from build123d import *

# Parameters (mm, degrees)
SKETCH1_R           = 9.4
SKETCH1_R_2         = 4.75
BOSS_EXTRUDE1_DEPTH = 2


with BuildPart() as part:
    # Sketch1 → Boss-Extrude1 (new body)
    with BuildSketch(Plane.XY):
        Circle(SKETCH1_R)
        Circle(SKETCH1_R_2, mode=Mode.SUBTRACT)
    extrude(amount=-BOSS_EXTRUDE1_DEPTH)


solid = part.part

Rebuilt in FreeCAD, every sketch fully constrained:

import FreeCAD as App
import Part
import Sketcher
from FreeCAD import Vector

doc = App.newDocument("Part")
params = doc.addObject("Spreadsheet::Sheet", "Params")
for row, (alias, value) in enumerate([
    ("sketch1_diameter", "18.8 mm"),
    ("sketch1_diameter2", "9.5 mm"),
    ("pad1_length", "2 mm"),
], start=1):
    params.set(f"A{row}", alias)
    params.set(f"B{row}", "=" + value)
    params.setAlias(f"B{row}", alias)

body = doc.addObject("PartDesign::Body", "Body")

sketch1 = body.newObject("Sketcher::SketchObject", "Sketch")
sketch1.AttachmentSupport = (doc.getObject("XY_Plane"), [""])
sketch1.MapMode = "FlatFace"
sketch1.addGeometry(Part.Circle(Vector(0, 0, 0), Vector(0, 0, 1), 9.4), False)
sketch1.addGeometry(Part.Circle(Vector(0, 0, 0), Vector(0, 0, 1), 4.8), False)
sketch1.addConstraint(Sketcher.Constraint("Coincident", 0, 3, -1, 1))
sketch1.addConstraint(Sketcher.Constraint("Coincident", 1, 3, -1, 1))
sketch1.addConstraint(Sketcher.Constraint("Diameter", 0, 18.8))
sketch1.addConstraint(Sketcher.Constraint("Diameter", 1, 9.5))
sketch1.setExpression("Constraints[2]", "Params.sketch1_diameter")
sketch1.setExpression("Constraints[3]", "Params.sketch1_diameter2")
pad1 = body.newObject("PartDesign::Pad", "Pad")
pad1.Profile = sketch1
pad1.setExpression("Length", "Params.pad1_length")
pad1.Reversed = True

doc.recompute()
